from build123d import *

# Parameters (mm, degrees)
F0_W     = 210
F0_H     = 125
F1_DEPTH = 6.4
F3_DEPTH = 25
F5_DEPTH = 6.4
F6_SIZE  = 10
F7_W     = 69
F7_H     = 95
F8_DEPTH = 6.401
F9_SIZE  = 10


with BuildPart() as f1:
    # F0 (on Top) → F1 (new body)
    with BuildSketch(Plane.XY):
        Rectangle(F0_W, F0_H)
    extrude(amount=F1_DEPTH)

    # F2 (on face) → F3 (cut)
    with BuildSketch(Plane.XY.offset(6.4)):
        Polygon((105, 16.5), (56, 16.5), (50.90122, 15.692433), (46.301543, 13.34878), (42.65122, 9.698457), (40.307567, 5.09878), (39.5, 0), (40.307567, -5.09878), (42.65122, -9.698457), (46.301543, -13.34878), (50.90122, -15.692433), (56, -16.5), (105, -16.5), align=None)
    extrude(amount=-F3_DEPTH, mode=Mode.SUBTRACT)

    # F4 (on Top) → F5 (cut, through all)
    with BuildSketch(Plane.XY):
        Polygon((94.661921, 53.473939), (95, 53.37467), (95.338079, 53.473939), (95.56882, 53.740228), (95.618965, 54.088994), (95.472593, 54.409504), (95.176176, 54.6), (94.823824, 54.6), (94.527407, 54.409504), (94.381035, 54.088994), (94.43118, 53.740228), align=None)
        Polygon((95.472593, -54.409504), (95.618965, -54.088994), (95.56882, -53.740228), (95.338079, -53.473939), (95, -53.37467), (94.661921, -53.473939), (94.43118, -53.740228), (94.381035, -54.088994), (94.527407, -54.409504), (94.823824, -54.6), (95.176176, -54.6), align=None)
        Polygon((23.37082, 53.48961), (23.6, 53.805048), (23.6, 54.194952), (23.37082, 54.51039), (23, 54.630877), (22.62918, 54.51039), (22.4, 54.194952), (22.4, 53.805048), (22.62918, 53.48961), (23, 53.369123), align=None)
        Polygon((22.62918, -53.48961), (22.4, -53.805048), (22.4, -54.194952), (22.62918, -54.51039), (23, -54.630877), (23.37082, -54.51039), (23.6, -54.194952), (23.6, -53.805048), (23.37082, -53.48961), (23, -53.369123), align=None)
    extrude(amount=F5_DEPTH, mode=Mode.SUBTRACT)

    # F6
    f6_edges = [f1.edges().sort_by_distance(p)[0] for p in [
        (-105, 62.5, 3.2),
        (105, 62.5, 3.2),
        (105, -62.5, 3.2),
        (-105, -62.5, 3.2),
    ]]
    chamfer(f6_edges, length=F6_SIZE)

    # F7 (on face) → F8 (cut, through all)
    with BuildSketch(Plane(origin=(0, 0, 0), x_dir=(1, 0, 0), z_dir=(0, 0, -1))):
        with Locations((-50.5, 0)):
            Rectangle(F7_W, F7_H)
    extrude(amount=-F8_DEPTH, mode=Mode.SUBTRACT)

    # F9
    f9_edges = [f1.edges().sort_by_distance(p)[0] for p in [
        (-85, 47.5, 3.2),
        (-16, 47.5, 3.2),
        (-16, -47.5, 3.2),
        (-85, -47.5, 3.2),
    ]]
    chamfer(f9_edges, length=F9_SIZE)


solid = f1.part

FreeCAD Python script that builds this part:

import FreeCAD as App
import Part
import Sketcher
from FreeCAD import Vector
Q = App.Units.Quantity


def edges_at(feature, points):
    """Names of the edges that pass closest to the given points."""
    edges = feature.Shape.Edges
    near = lambda p: min(range(len(edges)), key=lambda i: edges[i].distToShape(Part.Vertex(*p))[0])
    return sorted({f"Edge{near(p) + 1}" for p in points})

doc = App.newDocument("Part")
params = doc.addObject("Spreadsheet::Sheet", "Params")
for row, (alias, value) in enumerate([
    ("sketch1_width", "210 mm"),
    ("sketch1_height", "125 mm"),
    ("pad1_length", "6.4 mm"),
    ("sketch2_width", "49 mm"),
    ("sketch2_height", "33 mm"),
    ("pocket1_length", "25 mm"),
    ("chamfer_size", "10 mm"),
    ("sketch4_width", "69 mm"),
    ("sketch4_height", "95 mm"),
    ("chamfer2_size", "10 mm"),
], start=1):
    params.set(f"A{row}", alias)
    params.set(f"B{row}", "=" + value)
    params.setAlias(f"B{row}", alias)

body = doc.addObject("PartDesign::Body", "Body")

# Sketch on XY plane
sketch1 = doc.addObject("Sketcher::SketchObject", "Sketch")
body.addObject(sketch1)
sketch1.AttachmentSupport = (doc.XY_Plane, [""])
sketch1.MapMode = "FlatFace"
sketch1.addGeometry(Part.LineSegment(Vector(-105, 62, 0), Vector(-105, -62, 0)), False)
sketch1.addGeometry(Part.LineSegment(Vector(-105, -62, 0), Vector(105, -62, 0)), False)
sketch1.addGeometry(Part.LineSegment(Vector(105, -62, 0), Vector(105, 62, 0)), False)
sketch1.addGeometry(Part.LineSegment(Vector(105, 62, 0), Vector(-105, 62, 0)), False)
sketch1.addConstraint(Sketcher.Constraint("Coincident", 0, 2, 1, 1))
sketch1.addConstraint(Sketcher.Constraint("Coincident", 1, 2, 2, 1))
sketch1.addConstraint(Sketcher.Constraint("Coincident", 2, 2, 3, 1))
sketch1.addConstraint(Sketcher.Constraint("Coincident", 3, 2, 0, 1))
sketch1.addConstraint(Sketcher.Constraint("Vertical", 0))
sketch1.addConstraint(Sketcher.Constraint("Horizontal", 1))
sketch1.addConstraint(Sketcher.Constraint("Vertical", 2))
sketch1.addConstraint(Sketcher.Constraint("Horizontal", 3))
sketch1.addConstraint(Sketcher.Constraint("Symmetric", 0, 2, 2, 2, -1, 1))
sketch1.addConstraint(Sketcher.Constraint("DistanceX", 1, 1, 1, 2, Q("210 mm")))
sketch1.addConstraint(Sketcher.Constraint("DistanceY", 0, 2, 0, 1, Q("125 mm")))
sketch1.setExpression("Constraints[9]", "Params.sketch1_width")
sketch1.setExpression("Constraints[10]", "Params.sketch1_height")
pad1 = doc.addObject("PartDesign::Pad", "Pad")
body.addObject(pad1)
pad1.Profile = sketch1
pad1.setExpression("Length", "Params.pad1_length")

# Sketch on XY plane
sketch2 = doc.addObject("Sketcher::SketchObject", "Sketch001")
body.addObject(sketch2)
sketch2.AttachmentSupport = (doc.XY_Plane, [""])
sketch2.MapMode = "FlatFace"
sketch2.AttachmentOffset = App.Placement(Vector(0, 0, 6.4), App.Rotation())
sketch2.addGeometry(Part.LineSegment(Vector(105, 16, 0), Vector(56, 16, 0)), False)
sketch2.addGeometry(Part.LineSegment(Vector(56, 16, 0), Vector(51, 16, 0)), False)
sketch2.addGeometry(Part.LineSegment(Vector(51, 16, 0), Vector(46, 13, 0)), False)
sketch2.addGeometry(Part.LineSegment(Vector(46, 13, 0), Vector(43, 10, 0)), False)
sketch2.addGeometry(Part.LineSegment(Vector(43, 10, 0), Vector(40, 5, 0)), False)
sketch2.addGeometry(Part.LineSegment(Vector(40, 5, 0), Vector(40, 0, 0)), False)
sketch2.addGeometry(Part.LineSegment(Vector(40, 0, 0), Vector(40, -5, 0)), False)
sketch2.addGeometry(Part.LineSegment(Vector(40, -5, 0), Vector(43, -10, 0)), False)
sketch2.addGeometry(Part.LineSegment(Vector(43, -10, 0), Vector(46, -13, 0)), False)
sketch2.addGeometry(Part.LineSegment(Vector(46, -13, 0), Vector(51, -16, 0)), False)
sketch2.addGeometry(Part.LineSegment(Vector(51, -16, 0), Vector(56, -16, 0)), False)
sketch2.addGeometry(Part.LineSegment(Vector(56, -16, 0), Vector(105, -16, 0)), False)
sketch2.addGeometry(Part.LineSegment(Vector(105, -16, 0), Vector(105, 16, 0)), False)
sketch2.addConstraint(Sketcher.Constraint("Coincident", 0, 2, 1, 1))
sketch2.addConstraint(Sketcher.Constraint("Coincident", 1, 2, 2, 1))
sketch2.addConstraint(Sketcher.Constraint("Coincident", 2, 2, 3, 1))
sketch2.addConstraint(Sketcher.Constraint("Coincident", 3, 2, 4, 1))
sketch2.addConstraint(Sketcher.Constraint("Coincident", 4, 2, 5, 1))
sketch2.addConstraint(Sketcher.Constraint("Coincident", 5, 2, 6, 1))
sketch2.addConstraint(Sketcher.Constraint("Coincident", 6, 2, 7, 1))
sketch2.addConstraint(Sketcher.Constraint("Coincident", 7, 2, 8, 1))
sketch2.addConstraint(Sketcher.Constraint("Coincident", 8, 2, 9, 1))
sketch2.addConstraint(Sketcher.Constraint("Coincident", 9, 2, 10, 1))
sketch2.addConstraint(Sketcher.Constraint("Coincident", 10, 2, 11, 1))
sketch2.addConstraint(Sketcher.Constraint("Coincident", 11, 2, 12, 1))
sketch2.addConstraint(Sketcher.Constraint("Coincident", 12, 2, 0, 1))
sketch2.addConstraint(Sketcher.Constraint("Horizontal", 0))
sketch2.addConstraint(Sketcher.Constraint("Horizontal", 11))
sketch2.addConstraint(Sketcher.Constraint("Vertical", 12))
sketch2.addConstraint(Sketcher.Constraint("Symmetric", 4, 2, 6, 2, -1))
sketch2.addConstraint(Sketcher.Constraint("Symmetric", 3, 2, 7, 2, -1))
sketch2.addConstraint(Sketcher.Constraint("Symmetric", 2, 2, 8, 2, -1))
sketch2.addConstraint(Sketcher.Constraint("Symmetric", 1, 2, 9, 2, -1))
sketch2.addConstraint(Sketcher.Constraint("Symmetric", 0, 2, 10, 2, -1))
sketch2.addConstraint(Sketcher.Constraint("PointOnObject", 5, 2, -1))
sketch2.addConstraint(Sketcher.Constraint("Perpendicular", 1, 6))
sketch2.addConstraint(Sketcher.Constraint("Perpendicular", 2, 7))
sketch2.addConstraint(Sketcher.Constraint("Perpendicular", 3, 8))
sketch2.addConstraint(Sketcher.Constraint("Equal", 1, 2))
sketch2.addConstraint(Sketcher.Constraint("Equal", 1, 3))
sketch2.addConstraint(Sketcher.Constraint("Equal", 2, 4))
sketch2.addConstraint(Sketcher.Constraint("Equal", 4, 5))
sketch2.addConstraint(Sketcher.Constraint("DistanceX", 0, 2, 0, 1, Q("49 mm")))
sketch2.addConstraint(Sketcher.Constraint("DistanceY", 12, 1, 12, 2, Q("33 mm")))
sketch2.addConstraint(Sketcher.Constraint("Angle", 1, Q("-171.000005 deg")))
sketch2.addConstraint(Sketcher.Constraint("Angle", 2, Q("-152.999995 deg")))
sketch2.addConstraint(Sketcher.Constraint("DistanceX", -1, 1, 0, 2, Q("56 mm")))
sketch2.setExpression("Constraints[29]", "Params.sketch2_width")
sketch2.setExpression("Constraints[30]", "Params.sketch2_height")
pocket1 = doc.addObject("PartDesign::Pocket", "Pocket")
body.addObject(pocket1)
pocket1.Profile = sketch2
pocket1.setExpression("Length", "Params.pocket1_length")

# Sketch on XY plane
sketch3 = doc.addObject("Sketcher::SketchObject", "Sketch002")
body.addObject(sketch3)
sketch3.AttachmentSupport = (doc.XY_Plane, [""])
sketch3.MapMode = "FlatFace"
sketch3.addGeometry(Part.LineSegment(Vector(94.66, 53.47, 0), Vector(95, 53.37, 0)), False)
sketch3.addGeometry(Part.LineSegment(Vector(95, 53.37, 0), Vector(95.34, 53.47, 0)), False)
sketch3.addGeometry(Part.LineSegment(Vector(95.34, 53.47, 0), Vector(95.57, 53.74, 0)), False)
sketch3.addGeometry(Part.LineSegment(Vector(95.57, 53.74, 0), Vector(95.62, 54.09, 0)), False)
sketch3.addGeometry(Part.LineSegment(Vector(95.62, 54.09, 0), Vector(95.47, 54.41, 0)), False)
sketch3.addGeometry(Part.LineSegment(Vector(95.47, 54.41, 0), Vector(95.18, 54.6, 0)), False)
sketch3.addGeometry(Part.LineSegment(Vector(95.18, 54.6, 0), Vector(94.82, 54.6, 0)), False)
sketch3.addGeometry(Part.LineSegment(Vector(94.82, 54.6, 0), Vector(94.53, 54.41, 0)), False)
sketch3.addGeometry(Part.LineSegment(Vector(94.53, 54.41, 0), Vector(94.38, 54.09, 0)), False)
sketch3.addGeometry(Part.LineSegment(Vector(94.38, 54.09, 0), Vector(94.43, 53.74, 0)), False)
sketch3.addGeometry(Part.LineSegment(Vector(94.43, 53.74, 0), Vector(94.66, 53.47, 0)), False)
sketch3.addGeometry(Part.LineSegment(Vector(95.47, -54.41, 0), Vector(95.62, -54.09, 0)), False)
sketch3.addGeometry(Part.LineSegment(Vector(95.62, -54.09, 0), Vector(95.57, -53.74, 0)), False)
sketch3.addGeometry(Part.LineSegment(Vector(95.57, -53.74, 0), Vector(95.34, -53.47, 0)), False)
sketch3.addGeometry(Part.LineSegment(Vector(95.34, -53.47, 0), Vector(95, -53.37, 0)), False)
sketch3.addGeometry(Part.LineSegment(Vector(95, -53.37, 0), Vector(94.66, -53.47, 0)), False)
sketch3.addGeometry(Part.LineSegment(Vector(94.66, -53.47, 0), Vector(94.43, -53.74, 0)), False)
sketch3.addGeometry(Part.LineSegment(Vector(94.43, -53.74, 0), Vector(94.38, -54.09, 0)), False)
sketch3.addGeometry(Part.LineSegment(Vector(94.38, -54.09, 0), Vector(94.53, -54.41, 0)), False)
sketch3.addGeometry(Part.LineSegment(Vector(94.53, -54.41, 0), Vector(94.82, -54.6, 0)), False)
sketch3.addGeometry(Part.LineSegment(Vector(94.82, -54.6, 0), Vector(95.18, -54.6, 0)), False)
sketch3.addGeometry(Part.LineSegment(Vector(95.18, -54.6, 0), Vector(95.47, -54.41, 0)), False)
sketch3.addGeometry(Part.LineSegment(Vector(23.37, 53.49, 0), Vector(23.6, 53.81, 0)), False)
sketch3.addGeometry(Part.LineSegment(Vector(23.6, 53.81, 0), Vector(23.6, 54.19, 0)), False)
sketch3.addGeometry(Part.LineSegment(Vector(23.6, 54.19, 0), Vector(23.37, 54.51, 0)), False)
sketch3.addGeometry(Part.LineSegment(Vector(23.37, 54.51, 0), Vector(23, 54.63, 0)), False)
sketch3.addGeometry(Part.LineSegment(Vector(23, 54.63, 0), Vector(22.63, 54.51, 0)), False)
sketch3.addGeometry(Part.LineSegment(Vector(22.63, 54.51, 0), Vector(22.4, 54.19, 0)), False)
sketch3.addGeometry(Part.LineSegment(Vector(22.4, 54.19, 0), Vector(22.4, 53.81, 0)), False)
sketch3.addGeometry(Part.LineSegment(Vector(22.4, 53.81, 0), Vector(22.63, 53.49, 0)), False)
sketch3.addGeometry(Part.LineSegment(Vector(22.63, 53.49, 0), Vector(23, 53.37, 0)), False)
sketch3.addGeometry(Part.LineSegment(Vector(23, 53.37, 0), Vector(23.37, 53.49, 0)), False)
sketch3.addGeometry(Part.LineSegment(Vector(22.63, -53.49, 0), Vector(22.4, -53.81, 0)), False)
sketch3.addGeometry(Part.LineSegment(Vector(22.4, -53.81, 0), Vector(22.4, -54.19, 0)), False)
sketch3.addGeometry(Part.LineSegment(Vector(22.4, -54.19, 0), Vector(22.63, -54.51, 0)), False)
sketch3.addGeometry(Part.LineSegment(Vector(22.63, -54.51, 0), Vector(23, -54.63, 0)), False)
sketch3.addGeometry(Part.LineSegment(Vector(23, -54.63, 0), Vector(23.37, -54.51, 0)), False)
sketch3.addGeometry(Part.LineSegment(Vector(23.37, -54.51, 0), Vector(23.6, -54.19, 0)), False)
sketch3.addGeometry(Part.LineSegment(Vector(23.6, -54.19, 0), Vector(23.6, -53.81, 0)), False)
sketch3.addGeometry(Part.LineSegment(Vector(23.6, -53.81, 0), Vector(23.37, -53.49, 0)), False)
sketch3.addGeometry(Part.LineSegment(Vector(23.37, -53.49, 0), Vector(23, -53.37, 0)), False)
sketch3.addGeometry(Part.LineSegment(Vector(23, -53.37, 0), Vector(22.63, -53.49, 0)), False)
sketch3.addConstraint(Sketcher.Constraint("Coincident", 0, 2, 1, 1))
sketch3.addConstraint(Sketcher.Constraint("Coincident", 1, 2, 2, 1))
sketch3.addConstraint(Sketcher.Constraint("Coincident", 2, 2, 3, 1))
sketch3.addConstraint(Sketcher.Constraint("Coincident", 3, 2, 4, 1))
sketch3.addConstraint(Sketcher.Constraint("Coincident", 4, 2, 5, 1))
sketch3.addConstraint(Sketcher.Constraint("Coincident", 5, 2, 6, 1))
sketch3.addConstraint(Sketcher.Constraint("Coincident", 6, 2, 7, 1))
sketch3.addConstraint(Sketcher.Constraint("Coincident", 7, 2, 8, 1))
sketch3.addConstraint(Sketcher.Constraint("Coincident", 8, 2, 9, 1))
sketch3.addConstraint(Sketcher.Constraint("Coincident", 9, 2, 10, 1))
sketch3.addConstraint(Sketcher.Constraint("Coincident", 10, 2, 0, 1))
sketch3.addConstraint(Sketcher.Constraint("Coincident", 11, 2, 12, 1))
sketch3.addConstraint(Sketcher.Constraint("Coincident", 12, 2, 13, 1))
sketch3.addConstraint(Sketcher.Constraint("Coincident", 13, 2, 14, 1))
sketch3.addConstraint(Sketcher.Constraint("Coincident", 14, 2, 15, 1))
sketch3.addConstraint(Sketcher.Constraint("Coincident", 15, 2, 16, 1))
sketch3.addConstraint(Sketcher.Constraint("Coincident", 16, 2, 17, 1))
sketch3.addConstraint(Sketcher.Constraint("Coincident", 17, 2, 18, 1))
sketch3.addConstraint(Sketcher.Constraint("Coincident", 18, 2, 19, 1))
sketch3.addConstraint(Sketcher.Constraint("Coincident", 19, 2, 20, 1))
sketch3.addConstraint(Sketcher.Constraint("Coincident", 20, 2, 21, 1))
sketch3.addConstraint(Sketcher.Constraint("Coincident", 21, 2, 11, 1))
sketch3.addConstraint(Sketcher.Constraint("Coincident", 22, 2, 23, 1))
sketch3.addConstraint(Sketcher.Constraint("Coincident", 23, 2, 24, 1))
sketch3.addConstraint(Sketcher.Constraint("Coincident", 24, 2, 25, 1))
sketch3.addConstraint(Sketcher.Constraint("Coincident", 25, 2, 26, 1))
sketch3.addConstraint(Sketcher.Constraint("Coincident", 26, 2, 27, 1))
sketch3.addConstraint(Sketcher.Constraint("Coincident", 27, 2, 28, 1))
sketch3.addConstraint(Sketcher.Constraint("Coincident", 28, 2, 29, 1))
sketch3.addConstraint(Sketcher.Constraint("Coincident", 29, 2, 30, 1))
sketch3.addConstraint(Sketcher.Constraint("Coincident", 30, 2, 31, 1))
sketch3.addConstraint(Sketcher.Constraint("Coincident", 31, 2, 22, 1))
sketch3.addConstraint(Sketcher.Constraint("Coincident", 32, 2, 33, 1))
sketch3.addConstraint(Sketcher.Constraint("Coincident", 33, 2, 34, 1))
sketch3.addConstraint(Sketcher.Constraint("Coincident", 34, 2, 35, 1))
sketch3.addConstraint(Sketcher.Constraint("Coincident", 35, 2, 36, 1))
sketch3.addConstraint(Sketcher.Constraint("Coincident", 36, 2, 37, 1))
sketch3.addConstraint(Sketcher.Constraint("Coincident", 37, 2, 38, 1))
sketch3.addConstraint(Sketcher.Constraint("Coincident", 38, 2, 39, 1))
sketch3.addConstraint(Sketcher.Constraint("Coincident", 39, 2, 40, 1))
sketch3.addConstraint(Sketcher.Constraint("Coincident", 40, 2, 41, 1))
sketch3.addConstraint(Sketcher.Constraint("Coincident", 41, 2, 32, 1))
sketch3.addConstraint(Sketcher.Constraint("Horizontal", 6))
sketch3.addConstraint(Sketcher.Constraint("Horizontal", 20))
sketch3.addConstraint(Sketcher.Constraint("Vertical", 23))
sketch3.addConstraint(Sketcher.Constraint("Vertical", 28))
sketch3.addConstraint(Sketcher.Constraint("Vertical", 33))
sketch3.addConstraint(Sketcher.Constraint("Vertical", 38))
sketch3.addConstraint(Sketcher.Constraint("Symmetric", 3, 2, 11, 2, -1))
sketch3.addConstraint(Sketcher.Constraint("Symmetric", 2, 2, 12, 2, -1))
sketch3.addConstraint(Sketcher.Constraint("Symmetric", 1, 2, 13, 2, -1))
sketch3.addConstraint(Sketcher.Constraint("Symmetric", 0, 2, 14, 2, -1))
sketch3.addConstraint(Sketcher.Constraint("Symmetric", 10, 2, 15, 2, -1))
sketch3.addConstraint(Sketcher.Constraint("Symmetric", 9, 2, 16, 2, -1))
sketch3.addConstraint(Sketcher.Constraint("Symmetric", 8, 2, 17, 2, -1))
sketch3.addConstraint(Sketcher.Constraint("Symmetric", 7, 2, 18, 2, -1))
sketch3.addConstraint(Sketcher.Constraint("Symmetric", 6, 2, 19, 2, -1))
sketch3.addConstraint(Sketcher.Constraint("Symmetric", 4, 2, 21, 2, -1))
sketch3.addConstraint(Sketcher.Constraint("Symmetric", 28, 2, 32, 2, -1))
sketch3.addConstraint(Sketcher.Constraint("Symmetric", 26, 2, 34, 2, -1))
sketch3.addConstraint(Sketcher.Constraint("Symmetric", 25, 2, 35, 2, -1))
sketch3.addConstraint(Sketcher.Constraint("Symmetric", 24, 2, 36, 2, -1))
sketch3.addConstraint(Sketcher.Constraint("Symmetric", 23, 2, 37, 2, -1))
sketch3.addConstraint(Sketcher.Constraint("Symmetric", 31, 2, 39, 2, -1))
sketch3.addConstraint(Sketcher.Constraint("Symmetric", 30, 2, 40, 2, -1))
sketch3.addConstraint(Sketcher.Constraint("Symmetric", 29, 2, 41, 2, -1))
sketch3.addConstraint(Sketcher.Constraint("Parallel", 8, 11))
sketch3.addConstraint(Sketcher.Constraint("Parallel", 9, 12))
sketch3.addConstraint(Sketcher.Constraint("Parallel", 10, 13))
sketch3.addConstraint(Sketcher.Constraint("Parallel", 0, 14))
sketch3.addConstraint(Sketcher.Constraint("Parallel", 5, 19))
sketch3.addConstraint(Sketcher.Constraint("Parallel", 7, 21))
sketch3.addConstraint(Sketcher.Constraint("Parallel", 22, 27))
sketch3.addConstraint(Sketcher.Constraint("Parallel", 24, 29))
sketch3.addConstraint(Sketcher.Constraint("Parallel", 25, 30))
sketch3.addConstraint(Sketcher.Constraint("Parallel", 26, 31))
sketch3.addConstraint(Sketcher.Constraint("Parallel", 27, 32))
sketch3.addConstraint(Sketcher.Constraint("Parallel", 29, 34))
sketch3.addConstraint(Sketcher.Constraint("Parallel", 30, 35))
sketch3.addConstraint(Sketcher.Constraint("Parallel", 34, 39))
sketch3.addConstraint(Sketcher.Constraint("Horizontal", 4, 2, 7, 2))
sketch3.addConstraint(Sketcher.Constraint("Horizontal", 3, 2, 8, 2))
sketch3.addConstraint(Sketcher.Constraint("Horizontal", 2, 2, 9, 2))
sketch3.addConstraint(Sketcher.Constraint("Horizontal", 1, 2, 10, 2))
sketch3.addConstraint(Sketcher.Constraint("Horizontal", 24, 2, 26, 2))
sketch3.addConstraint(Sketcher.Constraint("Horizontal", 23, 2, 27, 2))
sketch3.addConstraint(Sketcher.Constraint("Horizontal", 22, 2, 28, 2))
sketch3.addConstraint(Sketcher.Constraint("Horizontal", 29, 2, 31, 2))
sketch3.addConstraint(Sketcher.Constraint("Vertical", 26, 2, 29, 2))
sketch3.addConstraint(Sketcher.Constraint("Equal", 1, 2))
sketch3.addConstraint(Sketcher.Constraint("Equal", 2, 3))
sketch3.addConstraint(Sketcher.Constraint("Equal", 3, 4))
sketch3.addConstraint(Sketcher.Constraint("Equal", 4, 5))
sketch3.addConstraint(Sketcher.Constraint("Equal", 24, 25))
sketch3.addConstraint(Sketcher.Constraint("DistanceX", -1, 1, 0, 2, Q("95 mm")))
sketch3.addConstraint(Sketcher.Constraint("DistanceX", -1, 1, 25, 2, Q("23 mm")))
sketch3.addConstraint(Sketcher.Constraint("DistanceY", -1, 1, 5, 2, Q("54.6 mm")))
sketch3.addConstraint(Sketcher.Constraint("DistanceX", -1, 1, 22, 2, Q("23.6 mm")))
sketch3.addConstraint(Sketcher.Constraint("DistanceX", 34, 2, 16, 2, Q("71.802 mm")))
sketch3.addConstraint(Sketcher.Constraint("DistanceX", 6, 2, 6, 1, Q("0.352352 mm")))
sketch3.addConstraint(Sketcher.Constraint("DistanceX", 9, 2, 1, 2, Q("0.906899 mm")))
sketch3.addConstraint(Sketcher.Constraint("DistanceY", 12, 2, 0, 2, Q("107.114898 mm")))
sketch3.addConstraint(Sketcher.Constraint("Distance", 0, Q("0.352352 mm")))
sketch3.addConstraint(Sketcher.Constraint("DistanceY", 23, 1, 23, 2, Q("0.389904 mm")))
sketch3.addConstraint(Sketcher.Constraint("DistanceY", -1, 1, 0, 2, Q("53.37467 mm")))
sketch3.addConstraint(Sketcher.Constraint("DistanceY", -1, 1, 24, 2, Q("54.51039 mm")))
sketch3.addConstraint(Sketcher.Constraint("DistanceY", -1, 1, 29, 2, Q("53.48961 mm")))
sketch3.addConstraint(Sketcher.Constraint("DistanceX", 4, 2, 3, 2, Q("0.146372 mm")))
pocket2 = doc.addObject("PartDesign::Pocket", "Pocket001")
body.addObject(pocket2)
pocket2.Profile = sketch3
pocket2.Type = "ThroughAll"
pocket2.Reversed = True
doc.recompute()

chamfer = doc.addObject("PartDesign::Chamfer", "Chamfer")
body.addObject(chamfer)
chamfer.Base = (pocket2, edges_at(pocket2, [
    (-105, 62.5, 3.2),
    (105, 62.5, 3.2),
    (105, -62.5, 3.2),
    (-105, -62.5, 3.2),
]))
chamfer.setExpression("Size", "Params.chamfer_size")

# Sketch on XY plane
sketch4 = doc.addObject("Sketcher::SketchObject", "Sketch003")
body.addObject(sketch4)
sketch4.AttachmentSupport = (doc.XY_Plane, [""])
sketch4.MapMode = "FlatFace"
sketch4.addGeometry(Part.LineSegment(Vector(-85, -48, 0), Vector(-85, 48, 0)), False)
sketch4.addGeometry(Part.LineSegment(Vector(-85, 48, 0), Vector(-16, 48, 0)), False)
sketch4.addGeometry(Part.LineSegment(Vector(-16, 48, 0), Vector(-16, -48, 0)), False)
sketch4.addGeometry(Part.LineSegment(Vector(-16, -48, 0), Vector(-85, -48, 0)), False)
sketch4.addConstraint(Sketcher.Constraint("Coincident", 0, 2, 1, 1))
sketch4.addConstraint(Sketcher.Constraint("Coincident", 1, 2, 2, 1))
sketch4.addConstraint(Sketcher.Constraint("Coincident", 2, 2, 3, 1))
sketch4.addConstraint(Sketcher.Constraint("Coincident", 3, 2, 0, 1))
sketch4.addConstraint(Sketcher.Constraint("Vertical", 0))
sketch4.addConstraint(Sketcher.Constraint("Horizontal", 1))
sketch4.addConstraint(Sketcher.Constraint("Vertical", 2))
sketch4.addConstraint(Sketcher.Constraint("Horizontal", 3))
sketch4.addConstraint(Sketcher.Constraint("DistanceX", 1, 1, 1, 2, Q("69 mm")))
sketch4.addConstraint(Sketcher.Constraint("DistanceY", 0, 1, 0, 2, Q("95 mm")))
sketch4.addConstraint(Sketcher.Constraint("DistanceX", 0, 2, -1, 1, Q("85 mm")))
sketch4.addConstraint(Sketcher.Constraint("DistanceY", -1, 1, 0, 2, Q("47.5 mm")))
sketch4.setExpression("Constraints[8]", "Params.sketch4_width")
sketch4.setExpression("Constraints[9]", "Params.sketch4_height")
pocket3 = doc.addObject("PartDesign::Pocket", "Pocket002")
body.addObject(pocket3)
pocket3.Profile = sketch4
pocket3.Type = "ThroughAll"
pocket3.Reversed = True
doc.recompute()

chamfer2 = doc.addObject("PartDesign::Chamfer", "Chamfer001")
body.addObject(chamfer2)
chamfer2.Base = (pocket3, edges_at(pocket3, [
    (-85, 47.5, 3.2),
    (-16, 47.5, 3.2),
    (-16, -47.5, 3.2),
    (-85, -47.5, 3.2),
]))
chamfer2.setExpression("Size", "Params.chamfer2_size")

doc.recompute()
